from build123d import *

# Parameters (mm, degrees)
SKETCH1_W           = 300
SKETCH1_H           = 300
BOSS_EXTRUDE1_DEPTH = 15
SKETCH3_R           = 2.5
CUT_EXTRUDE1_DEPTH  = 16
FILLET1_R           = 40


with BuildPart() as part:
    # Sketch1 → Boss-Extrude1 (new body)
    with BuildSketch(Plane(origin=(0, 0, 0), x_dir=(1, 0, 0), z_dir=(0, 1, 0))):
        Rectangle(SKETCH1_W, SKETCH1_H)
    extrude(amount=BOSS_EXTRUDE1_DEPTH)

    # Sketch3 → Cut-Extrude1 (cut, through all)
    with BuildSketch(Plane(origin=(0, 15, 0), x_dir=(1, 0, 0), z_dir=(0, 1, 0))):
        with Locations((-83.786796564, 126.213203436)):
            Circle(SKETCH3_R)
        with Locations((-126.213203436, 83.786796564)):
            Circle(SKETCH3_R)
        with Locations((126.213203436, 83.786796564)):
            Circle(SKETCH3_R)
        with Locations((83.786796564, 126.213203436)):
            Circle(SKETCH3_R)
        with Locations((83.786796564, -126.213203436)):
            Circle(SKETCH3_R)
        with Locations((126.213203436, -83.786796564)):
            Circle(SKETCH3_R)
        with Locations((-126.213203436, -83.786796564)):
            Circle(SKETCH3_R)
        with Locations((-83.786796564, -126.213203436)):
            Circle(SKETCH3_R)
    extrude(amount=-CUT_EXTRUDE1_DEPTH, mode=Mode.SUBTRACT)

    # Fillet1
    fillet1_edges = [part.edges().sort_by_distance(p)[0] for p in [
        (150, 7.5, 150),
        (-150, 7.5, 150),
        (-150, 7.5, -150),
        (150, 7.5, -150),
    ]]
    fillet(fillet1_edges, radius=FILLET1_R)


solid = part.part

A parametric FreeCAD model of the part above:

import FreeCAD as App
import Part
import Sketcher
from FreeCAD import Vector


def edges_at(feature, points):
    """Names of the edges that pass closest to the given points."""
    edges = feature.Shape.Edges
    near = lambda p: min(range(len(edges)), key=lambda i: edges[i].distToShape(Part.Vertex(*p))[0])
    return sorted({f"Edge{near(p) + 1}" for p in points})


def add_polygon(sketch, points):
    """Adds a closed chain of lines whose ends are joined by coincident constraints."""
    first, n = sketch.GeometryCount, len(points)
    for a, b in zip(points, points[1:] + points[:1]):
        sketch.addGeometry(Part.LineSegment(App.Vector(*a, 0), App.Vector(*b, 0)), False)
    for i in range(n):
        sketch.addConstraint(Sketcher.Constraint("Coincident", first + i, 2, first + (i + 1) % n, 1))

doc = App.newDocument("Part")
body = doc.addObject("PartDesign::Body", "Body")

# Sketch on XZ plane
sketch1 = doc.addObject("Sketcher::SketchObject", "Sketch")
body.addObject(sketch1)
sketch1.AttachmentSupport = (doc.XZ_Plane, [""])
sketch1.MapMode = "FlatFace"
add_polygon(sketch1, [(-150, -150), (-150, 150), (150, 150), (150, -150)])  # lines 0-3
sketch1.addConstraint(Sketcher.Constraint("Vertical", 0))
sketch1.addConstraint(Sketcher.Constraint("Horizontal", 1))
sketch1.addConstraint(Sketcher.Constraint("Vertical", 2))
sketch1.addConstraint(Sketcher.Constraint("Horizontal", 3))
sketch1.addConstraint(Sketcher.Constraint("Symmetric", 0, 2, 2, 2, -1, 1))
sketch1.addConstraint(Sketcher.Constraint("Equal", 3, 0))
sketch1.addConstraint(Sketcher.Constraint("DistanceX", 1, 1, 1, 2, 300.0))
pad1 = doc.addObject("PartDesign::Pad", "Pad")
body.addObject(pad1)
pad1.Profile = sketch1
pad1.Length = 15
pad1.Reversed = True

# Sketch on XZ plane
sketch2 = doc.addObject("Sketcher::SketchObject", "Sketch001")
body.addObject(sketch2)
sketch2.AttachmentSupport = (doc.XZ_Plane, [""])
sketch2.MapMode = "FlatFace"
sketch2.AttachmentOffset = App.Placement(Vector(0, 0, -15), App.Rotation())
sketch2.addGeometry(Part.Circle(Vector(-83.8, -126.2, 0), Vector(0, 0, 1), 2.5), False)
sketch2.addGeometry(Part.Circle(Vector(-126.2, -83.8, 0), Vector(0, 0, 1), 2.5), False)
sketch2.addGeometry(Part.Circle(Vector(126.2, -83.8, 0), Vector(0, 0, 1), 2.5), False)
sketch2.addGeometry(Part.Circle(Vector(83.8, -126.2, 0), Vector(0, 0, 1), 2.5), False)
sketch2.addGeometry(Part.Circle(Vector(83.8, 126.2, 0), Vector(0, 0, 1), 2.5), False)
sketch2.addGeometry(Part.Circle(Vector(126.2, 83.8, 0), Vector(0, 0, 1), 2.5), False)
sketch2.addGeometry(Part.Circle(Vector(-126.2, 83.8, 0), Vector(0, 0, 1), 2.5), False)
sketch2.addGeometry(Part.Circle(Vector(-83.8, 126.2, 0), Vector(0, 0, 1), 2.5), False)
sketch2.addConstraint(Sketcher.Constraint("Equal", 0, 1))
sketch2.addConstraint(Sketcher.Constraint("Equal", 1, 2))
sketch2.addConstraint(Sketcher.Constraint("Equal", 2, 3))
sketch2.addConstraint(Sketcher.Constraint("Equal", 3, 4))
sketch2.addConstraint(Sketcher.Constraint("Equal", 4, 5))
sketch2.addConstraint(Sketcher.Constraint("Equal", 5, 6))
sketch2.addConstraint(Sketcher.Constraint("Equal", 6, 7))
sketch2.addConstraint(Sketcher.Constraint("Symmetric", 0, 3, 4, 3, -1, 1))
sketch2.addConstraint(Sketcher.Constraint("Symmetric", 1, 3, 5, 3, -1, 1))
sketch2.addConstraint(Sketcher.Constraint("Symmetric", 2, 3, 6, 3, -1, 1))
sketch2.addConstraint(Sketcher.Constraint("Symmetric", 3, 3, 7, 3, -1, 1))
sketch2.addConstraint(Sketcher.Constraint("Symmetric", 1, 3, 2, 3, -2))
sketch2.addConstraint(Sketcher.Constraint("Symmetric", 0, 3, 3, 3, -2))
sketch2.addConstraint(Sketcher.Constraint("Diameter", 0, 5.0))
sketch2.addConstraint(Sketcher.Constraint("DistanceX", 0, 3, 2, 3, 210.0))
sketch2.addConstraint(Sketcher.Constraint("DistanceY", 2, 3, 4, 3, 210.0))
sketch2.addConstraint(Sketcher.Constraint("DistanceX", 0, 3, -1, 1, 83.786797))
sketch2.addConstraint(Sketcher.Constraint("DistanceY", 0, 3, -1, 1, 126.213203))
pocket1 = doc.addObject("PartDesign::Pocket", "Pocket")
body.addObject(pocket1)
pocket1.Profile = sketch2
pocket1.Type = "ThroughAll"
pocket1.Reversed = True
doc.recompute()

fillet = doc.addObject("PartDesign::Fillet", "Fillet")
body.addObject(fillet)
fillet.Base = (pocket1, edges_at(pocket1, [
    (150, 7.5, 150),
    (-150, 7.5, 150),
    (-150, 7.5, -150),
    (150, 7.5, -150),
]))
fillet.Radius = 40

doc.recompute()
